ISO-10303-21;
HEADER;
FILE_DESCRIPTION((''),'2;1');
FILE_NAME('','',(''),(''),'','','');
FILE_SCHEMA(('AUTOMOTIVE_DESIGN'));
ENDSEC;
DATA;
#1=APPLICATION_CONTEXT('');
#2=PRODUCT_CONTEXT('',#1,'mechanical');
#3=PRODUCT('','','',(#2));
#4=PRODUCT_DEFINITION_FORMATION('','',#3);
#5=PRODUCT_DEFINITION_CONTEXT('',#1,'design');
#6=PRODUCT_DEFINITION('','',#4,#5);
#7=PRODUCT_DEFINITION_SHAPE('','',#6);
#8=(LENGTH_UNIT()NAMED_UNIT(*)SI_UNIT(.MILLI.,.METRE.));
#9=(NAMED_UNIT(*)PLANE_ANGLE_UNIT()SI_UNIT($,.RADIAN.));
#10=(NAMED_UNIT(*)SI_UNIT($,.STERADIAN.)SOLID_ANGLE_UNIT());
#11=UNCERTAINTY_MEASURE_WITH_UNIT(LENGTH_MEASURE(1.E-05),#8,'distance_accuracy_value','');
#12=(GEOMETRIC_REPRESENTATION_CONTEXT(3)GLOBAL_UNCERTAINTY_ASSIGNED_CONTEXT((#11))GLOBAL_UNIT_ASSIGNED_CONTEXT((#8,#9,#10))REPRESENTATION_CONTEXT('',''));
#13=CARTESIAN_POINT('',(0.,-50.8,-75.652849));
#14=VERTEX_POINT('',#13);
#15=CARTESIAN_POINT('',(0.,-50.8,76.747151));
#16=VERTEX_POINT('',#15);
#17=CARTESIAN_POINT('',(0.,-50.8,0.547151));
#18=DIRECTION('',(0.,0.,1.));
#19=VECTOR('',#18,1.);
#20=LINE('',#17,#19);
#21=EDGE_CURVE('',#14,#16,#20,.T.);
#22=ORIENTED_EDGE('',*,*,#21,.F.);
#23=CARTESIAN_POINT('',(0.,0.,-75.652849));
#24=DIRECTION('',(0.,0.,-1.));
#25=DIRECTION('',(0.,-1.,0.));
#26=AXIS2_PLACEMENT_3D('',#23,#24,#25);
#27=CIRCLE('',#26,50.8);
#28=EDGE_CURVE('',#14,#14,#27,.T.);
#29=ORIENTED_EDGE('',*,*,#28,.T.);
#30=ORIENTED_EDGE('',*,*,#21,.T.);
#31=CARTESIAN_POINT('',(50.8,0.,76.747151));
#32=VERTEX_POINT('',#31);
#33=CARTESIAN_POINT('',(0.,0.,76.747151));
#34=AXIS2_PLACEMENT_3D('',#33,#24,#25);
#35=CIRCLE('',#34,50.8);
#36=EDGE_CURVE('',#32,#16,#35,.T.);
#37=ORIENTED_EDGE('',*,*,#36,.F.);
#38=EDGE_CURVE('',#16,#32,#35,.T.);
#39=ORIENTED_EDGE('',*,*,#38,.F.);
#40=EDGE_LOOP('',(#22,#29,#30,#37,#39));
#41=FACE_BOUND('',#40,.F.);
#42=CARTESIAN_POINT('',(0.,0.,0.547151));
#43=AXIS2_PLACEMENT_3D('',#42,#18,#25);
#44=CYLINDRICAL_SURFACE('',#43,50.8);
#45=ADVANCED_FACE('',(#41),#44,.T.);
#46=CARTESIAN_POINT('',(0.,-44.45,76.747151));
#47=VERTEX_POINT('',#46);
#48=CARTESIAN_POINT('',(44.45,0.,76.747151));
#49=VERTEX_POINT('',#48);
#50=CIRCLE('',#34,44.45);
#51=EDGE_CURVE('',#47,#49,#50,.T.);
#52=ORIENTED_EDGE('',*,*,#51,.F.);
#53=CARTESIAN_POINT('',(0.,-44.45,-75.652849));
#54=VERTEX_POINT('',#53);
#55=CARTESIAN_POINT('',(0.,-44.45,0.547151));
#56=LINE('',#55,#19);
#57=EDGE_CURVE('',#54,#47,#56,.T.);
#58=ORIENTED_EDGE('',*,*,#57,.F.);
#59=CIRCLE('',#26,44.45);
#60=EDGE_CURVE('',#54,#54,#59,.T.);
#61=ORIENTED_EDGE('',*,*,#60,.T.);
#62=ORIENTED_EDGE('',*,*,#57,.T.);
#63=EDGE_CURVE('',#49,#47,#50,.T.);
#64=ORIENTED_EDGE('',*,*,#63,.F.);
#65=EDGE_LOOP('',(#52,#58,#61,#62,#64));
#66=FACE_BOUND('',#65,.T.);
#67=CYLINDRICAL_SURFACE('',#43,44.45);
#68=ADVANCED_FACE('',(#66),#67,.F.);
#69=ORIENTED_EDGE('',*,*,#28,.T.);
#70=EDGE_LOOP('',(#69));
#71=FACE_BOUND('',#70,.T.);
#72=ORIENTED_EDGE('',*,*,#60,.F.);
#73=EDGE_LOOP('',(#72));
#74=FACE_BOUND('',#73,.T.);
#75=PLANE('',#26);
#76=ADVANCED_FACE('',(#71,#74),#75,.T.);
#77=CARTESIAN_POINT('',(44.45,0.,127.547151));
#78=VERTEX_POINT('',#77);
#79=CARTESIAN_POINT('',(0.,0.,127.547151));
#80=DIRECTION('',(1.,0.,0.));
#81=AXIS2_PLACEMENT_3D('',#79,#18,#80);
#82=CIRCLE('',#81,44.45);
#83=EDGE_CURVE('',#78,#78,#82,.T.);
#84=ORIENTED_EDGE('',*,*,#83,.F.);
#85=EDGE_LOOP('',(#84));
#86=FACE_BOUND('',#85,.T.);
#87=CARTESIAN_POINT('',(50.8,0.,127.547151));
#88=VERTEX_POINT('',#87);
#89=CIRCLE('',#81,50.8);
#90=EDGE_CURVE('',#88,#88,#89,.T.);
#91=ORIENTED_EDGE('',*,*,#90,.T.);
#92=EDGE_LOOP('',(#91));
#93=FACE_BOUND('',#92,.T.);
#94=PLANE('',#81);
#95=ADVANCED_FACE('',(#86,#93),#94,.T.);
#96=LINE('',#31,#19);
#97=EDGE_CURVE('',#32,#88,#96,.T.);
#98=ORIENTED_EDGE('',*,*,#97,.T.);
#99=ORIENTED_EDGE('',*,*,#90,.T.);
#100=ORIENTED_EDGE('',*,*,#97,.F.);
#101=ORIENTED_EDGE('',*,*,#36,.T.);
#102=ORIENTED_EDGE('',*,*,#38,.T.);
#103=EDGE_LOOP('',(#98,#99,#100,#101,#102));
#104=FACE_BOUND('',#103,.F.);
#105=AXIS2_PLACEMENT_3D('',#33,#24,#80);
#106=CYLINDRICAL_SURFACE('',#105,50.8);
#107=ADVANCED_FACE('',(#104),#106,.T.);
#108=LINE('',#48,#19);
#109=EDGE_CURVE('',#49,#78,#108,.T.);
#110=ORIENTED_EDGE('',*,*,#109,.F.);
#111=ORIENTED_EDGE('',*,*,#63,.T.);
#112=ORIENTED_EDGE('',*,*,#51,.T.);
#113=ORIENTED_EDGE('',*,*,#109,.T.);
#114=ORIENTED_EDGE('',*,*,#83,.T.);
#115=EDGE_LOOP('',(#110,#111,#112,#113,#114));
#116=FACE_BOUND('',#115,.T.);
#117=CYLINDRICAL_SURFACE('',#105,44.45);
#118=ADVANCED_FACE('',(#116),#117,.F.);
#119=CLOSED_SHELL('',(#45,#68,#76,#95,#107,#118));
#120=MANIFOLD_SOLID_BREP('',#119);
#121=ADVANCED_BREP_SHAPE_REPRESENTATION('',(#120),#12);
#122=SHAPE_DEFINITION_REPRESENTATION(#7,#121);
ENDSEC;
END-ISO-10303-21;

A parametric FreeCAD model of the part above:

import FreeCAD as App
import Part
import Sketcher
Q = App.Units.Quantity

doc = App.newDocument("Part")
body = doc.addObject("PartDesign::Body", "Body")

# Sketch on YZ plane
sketch1 = body.newObject("Sketcher::SketchObject", "Sketch")
sketch1.AttachmentSupport = (doc.getObject("YZ_Plane"), [""])
sketch1.MapMode = "FlatFace"
sketch1.addGeometry([
    Part.LineSegment(App.Vector(-51, 77, 0), App.Vector(-51, -76, 0)),
    Part.LineSegment(App.Vector(-51, -76, 0), App.Vector(-44, -76, 0)),
    Part.LineSegment(App.Vector(-44, -76, 0), App.Vector(-44, 77, 0)),
    Part.LineSegment(App.Vector(-44, 77, 0), App.Vector(-51, 77, 0)),
], False)
sketch1.addConstraint([
    Sketcher.Constraint("Coincident", 0, 2, 1, 1),
    Sketcher.Constraint("Coincident", 1, 2, 2, 1),
    Sketcher.Constraint("Coincident", 2, 2, 3, 1),
    Sketcher.Constraint("Coincident", 3, 2, 0, 1),
    Sketcher.Constraint("Vertical", 0),
    Sketcher.Constraint("Horizontal", 1),
    Sketcher.Constraint("Vertical", 2),
    Sketcher.Constraint("Horizontal", 3),
    Sketcher.Constraint("DistanceY", 0, 2, 0, 1, Q("6 in")),
    Sketcher.Constraint("DistanceX", 0, 2, -1, 1, Q("2 in")),
    Sketcher.Constraint("DistanceX", 1, 1, 1, 2, Q("0.25 in")),
    Sketcher.Constraint("DistanceY", 0, 2, -1, 1, Q("75.652849 mm")),
])
revolution = body.newObject("PartDesign::Revolution", "Revolution")
revolution.Profile = sketch1
revolution.ReferenceAxis = (sketch1, ["V_Axis"])
revolution.Angle = 360

# Sketch on XY plane
sketch2 = body.newObject("Sketcher::SketchObject", "Sketch001")
sketch2.AttachmentSupport = (doc.getObject("XY_Plane"), [""])
sketch2.MapMode = "FlatFace"
sketch2.AttachmentOffset = App.Placement(App.Vector(0, 0, 76.747151), App.Rotation())
sketch2.addGeometry([
    Part.Circle(App.Vector(0, 0, 0), App.Vector(0, 0, 1), 51),
    Part.Circle(App.Vector(0, 0, 0), App.Vector(0, 0, 1), 44),
], False)
sketch2.addConstraint([
    Sketcher.Constraint("Coincident", 0, 3, -1, 1),
    Sketcher.Constraint("Coincident", 1, 3, -1, 1),
    Sketcher.Constraint("Diameter", 0, Q("4 in")),
    Sketcher.Constraint("Diameter", 1, Q("3.5 in")),
])
pad1 = body.newObject("PartDesign::Pad", "Pad")
pad1.Profile = sketch2
pad1.Length = Q("2 in")

doc.recompute()
